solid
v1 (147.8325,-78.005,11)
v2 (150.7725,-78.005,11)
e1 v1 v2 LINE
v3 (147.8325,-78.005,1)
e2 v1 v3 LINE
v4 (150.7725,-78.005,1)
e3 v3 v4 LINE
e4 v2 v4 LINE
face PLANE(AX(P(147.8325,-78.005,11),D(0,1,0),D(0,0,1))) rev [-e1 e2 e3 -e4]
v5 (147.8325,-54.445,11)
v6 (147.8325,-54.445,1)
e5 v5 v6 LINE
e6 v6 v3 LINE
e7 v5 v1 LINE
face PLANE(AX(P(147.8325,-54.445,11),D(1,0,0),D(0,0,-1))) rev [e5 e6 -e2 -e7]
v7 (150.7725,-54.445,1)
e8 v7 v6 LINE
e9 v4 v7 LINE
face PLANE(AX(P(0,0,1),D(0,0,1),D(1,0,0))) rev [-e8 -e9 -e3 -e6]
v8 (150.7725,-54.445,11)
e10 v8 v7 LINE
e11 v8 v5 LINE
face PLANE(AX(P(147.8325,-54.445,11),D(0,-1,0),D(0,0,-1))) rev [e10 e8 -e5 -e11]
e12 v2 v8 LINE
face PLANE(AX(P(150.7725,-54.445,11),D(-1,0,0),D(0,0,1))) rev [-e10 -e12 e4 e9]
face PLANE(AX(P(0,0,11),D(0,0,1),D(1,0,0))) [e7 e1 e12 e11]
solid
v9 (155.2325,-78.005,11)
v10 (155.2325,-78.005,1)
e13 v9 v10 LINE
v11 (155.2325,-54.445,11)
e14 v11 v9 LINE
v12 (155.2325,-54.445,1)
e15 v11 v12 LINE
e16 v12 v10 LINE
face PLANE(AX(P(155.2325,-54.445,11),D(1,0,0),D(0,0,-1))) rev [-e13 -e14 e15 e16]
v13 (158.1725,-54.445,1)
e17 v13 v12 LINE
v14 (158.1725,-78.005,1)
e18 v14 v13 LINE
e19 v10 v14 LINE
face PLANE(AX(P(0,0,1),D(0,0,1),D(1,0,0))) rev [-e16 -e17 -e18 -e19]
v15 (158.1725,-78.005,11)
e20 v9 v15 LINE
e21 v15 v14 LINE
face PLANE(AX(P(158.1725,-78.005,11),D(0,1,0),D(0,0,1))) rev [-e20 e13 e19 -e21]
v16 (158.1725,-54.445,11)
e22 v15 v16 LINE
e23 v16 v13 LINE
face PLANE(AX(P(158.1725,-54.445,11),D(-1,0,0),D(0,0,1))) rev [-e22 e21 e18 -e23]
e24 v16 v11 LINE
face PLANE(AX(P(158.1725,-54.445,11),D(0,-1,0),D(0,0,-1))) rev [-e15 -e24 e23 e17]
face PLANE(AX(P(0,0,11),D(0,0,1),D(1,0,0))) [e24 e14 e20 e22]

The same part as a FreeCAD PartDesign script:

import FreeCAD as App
import Part
import Sketcher

V = App.Vector
Q = App.Units.Quantity

doc = App.newDocument("Part")
body = doc.addObject("PartDesign::Body", "Body")

# Sketch on XY plane
sketch1 = body.newObject("Sketcher::SketchObject", "Sketch")
sketch1.AttachmentSupport = (doc.getObject("XY_Plane"), [""])
sketch1.MapMode = "FlatFace"
sketch1.AttachmentOffset = App.Placement(V(0, 0, 1), App.Rotation())
sketch1.addGeometry([
    Part.LineSegment(V(147.8325, -54.445, 0), V(147.8325, -78.005, 0)),
    Part.LineSegment(V(147.8325, -78.005, 0), V(150.7725, -78.005, 0)),
    Part.LineSegment(V(150.7725, -78.005, 0), V(150.7725, -54.445, 0)),
    Part.LineSegment(V(150.7725, -54.445, 0), V(147.8325, -54.445, 0)),
], False)
sketch1.addConstraint([
    Sketcher.Constraint("Coincident", 0, 2, 1, 1),
    Sketcher.Constraint("Coincident", 1, 2, 2, 1),
    Sketcher.Constraint("Coincident", 2, 2, 3, 1),
    Sketcher.Constraint("Coincident", 3, 2, 0, 1),
    Sketcher.Constraint("Vertical", 0),
    Sketcher.Constraint("Horizontal", 1),
    Sketcher.Constraint("Vertical", 2),
    Sketcher.Constraint("Horizontal", 3),
    Sketcher.Constraint("DistanceX", 1, 1, 1, 2, Q("2.94 mm")),
    Sketcher.Constraint("DistanceY", 0, 2, 0, 1, Q("23.56 mm")),
    Sketcher.Constraint("DistanceY", 0, 2, -1, 1, Q("78.005 mm")),
    Sketcher.Constraint("DistanceX", -1, 1, 0, 2, Q("147.8325 mm")),
])
pad1 = body.newObject("PartDesign::Pad", "Pad")
pad1.Profile = sketch1
pad1.Length = 10
body2 = doc.addObject("PartDesign::Body", "Body001")

# Sketch on XY plane
sketch2 = body2.newObject("Sketcher::SketchObject", "Sketch001")
sketch2.AttachmentSupport = (doc.getObject("XY_Plane001"), [""])
sketch2.MapMode = "FlatFace"
sketch2.AttachmentOffset = App.Placement(V(0, 0, 1), App.Rotation())
sketch2.addGeometry([
    Part.LineSegment(V(155.2325, -54.445, 0), V(155.2325, -78.005, 0)),
    Part.LineSegment(V(155.2325, -78.005, 0), V(158.1725, -78.005, 0)),
    Part.LineSegment(V(158.1725, -78.005, 0), V(158.1725, -54.445, 0)),
    Part.LineSegment(V(158.1725, -54.445, 0), V(155.2325, -54.445, 0)),
], False)
sketch2.addConstraint([
    Sketcher.Constraint("Coincident", 0, 2, 1, 1),
    Sketcher.Constraint("Coincident", 1, 2, 2, 1),
    Sketcher.Constraint("Coincident", 2, 2, 3, 1),
    Sketcher.Constraint("Coincident", 3, 2, 0, 1),
    Sketcher.Constraint("Vertical", 0),
    Sketcher.Constraint("Horizontal", 1),
    Sketcher.Constraint("Vertical", 2),
    Sketcher.Constraint("Horizontal", 3),
    Sketcher.Constraint("DistanceX", 1, 1, 1, 2, Q("2.94 mm")),
    Sketcher.Constraint("DistanceY", 0, 2, 0, 1, Q("23.56 mm")),
    Sketcher.Constraint("DistanceY", 0, 2, -1, 1, Q("78.005 mm")),
    Sketcher.Constraint("DistanceX", -1, 1, 0, 2, Q("155.2325 mm")),
])
pad2 = body2.newObject("PartDesign::Pad", "Pad001")
pad2.Profile = sketch2
pad2.Length = 10

doc.recompute()
